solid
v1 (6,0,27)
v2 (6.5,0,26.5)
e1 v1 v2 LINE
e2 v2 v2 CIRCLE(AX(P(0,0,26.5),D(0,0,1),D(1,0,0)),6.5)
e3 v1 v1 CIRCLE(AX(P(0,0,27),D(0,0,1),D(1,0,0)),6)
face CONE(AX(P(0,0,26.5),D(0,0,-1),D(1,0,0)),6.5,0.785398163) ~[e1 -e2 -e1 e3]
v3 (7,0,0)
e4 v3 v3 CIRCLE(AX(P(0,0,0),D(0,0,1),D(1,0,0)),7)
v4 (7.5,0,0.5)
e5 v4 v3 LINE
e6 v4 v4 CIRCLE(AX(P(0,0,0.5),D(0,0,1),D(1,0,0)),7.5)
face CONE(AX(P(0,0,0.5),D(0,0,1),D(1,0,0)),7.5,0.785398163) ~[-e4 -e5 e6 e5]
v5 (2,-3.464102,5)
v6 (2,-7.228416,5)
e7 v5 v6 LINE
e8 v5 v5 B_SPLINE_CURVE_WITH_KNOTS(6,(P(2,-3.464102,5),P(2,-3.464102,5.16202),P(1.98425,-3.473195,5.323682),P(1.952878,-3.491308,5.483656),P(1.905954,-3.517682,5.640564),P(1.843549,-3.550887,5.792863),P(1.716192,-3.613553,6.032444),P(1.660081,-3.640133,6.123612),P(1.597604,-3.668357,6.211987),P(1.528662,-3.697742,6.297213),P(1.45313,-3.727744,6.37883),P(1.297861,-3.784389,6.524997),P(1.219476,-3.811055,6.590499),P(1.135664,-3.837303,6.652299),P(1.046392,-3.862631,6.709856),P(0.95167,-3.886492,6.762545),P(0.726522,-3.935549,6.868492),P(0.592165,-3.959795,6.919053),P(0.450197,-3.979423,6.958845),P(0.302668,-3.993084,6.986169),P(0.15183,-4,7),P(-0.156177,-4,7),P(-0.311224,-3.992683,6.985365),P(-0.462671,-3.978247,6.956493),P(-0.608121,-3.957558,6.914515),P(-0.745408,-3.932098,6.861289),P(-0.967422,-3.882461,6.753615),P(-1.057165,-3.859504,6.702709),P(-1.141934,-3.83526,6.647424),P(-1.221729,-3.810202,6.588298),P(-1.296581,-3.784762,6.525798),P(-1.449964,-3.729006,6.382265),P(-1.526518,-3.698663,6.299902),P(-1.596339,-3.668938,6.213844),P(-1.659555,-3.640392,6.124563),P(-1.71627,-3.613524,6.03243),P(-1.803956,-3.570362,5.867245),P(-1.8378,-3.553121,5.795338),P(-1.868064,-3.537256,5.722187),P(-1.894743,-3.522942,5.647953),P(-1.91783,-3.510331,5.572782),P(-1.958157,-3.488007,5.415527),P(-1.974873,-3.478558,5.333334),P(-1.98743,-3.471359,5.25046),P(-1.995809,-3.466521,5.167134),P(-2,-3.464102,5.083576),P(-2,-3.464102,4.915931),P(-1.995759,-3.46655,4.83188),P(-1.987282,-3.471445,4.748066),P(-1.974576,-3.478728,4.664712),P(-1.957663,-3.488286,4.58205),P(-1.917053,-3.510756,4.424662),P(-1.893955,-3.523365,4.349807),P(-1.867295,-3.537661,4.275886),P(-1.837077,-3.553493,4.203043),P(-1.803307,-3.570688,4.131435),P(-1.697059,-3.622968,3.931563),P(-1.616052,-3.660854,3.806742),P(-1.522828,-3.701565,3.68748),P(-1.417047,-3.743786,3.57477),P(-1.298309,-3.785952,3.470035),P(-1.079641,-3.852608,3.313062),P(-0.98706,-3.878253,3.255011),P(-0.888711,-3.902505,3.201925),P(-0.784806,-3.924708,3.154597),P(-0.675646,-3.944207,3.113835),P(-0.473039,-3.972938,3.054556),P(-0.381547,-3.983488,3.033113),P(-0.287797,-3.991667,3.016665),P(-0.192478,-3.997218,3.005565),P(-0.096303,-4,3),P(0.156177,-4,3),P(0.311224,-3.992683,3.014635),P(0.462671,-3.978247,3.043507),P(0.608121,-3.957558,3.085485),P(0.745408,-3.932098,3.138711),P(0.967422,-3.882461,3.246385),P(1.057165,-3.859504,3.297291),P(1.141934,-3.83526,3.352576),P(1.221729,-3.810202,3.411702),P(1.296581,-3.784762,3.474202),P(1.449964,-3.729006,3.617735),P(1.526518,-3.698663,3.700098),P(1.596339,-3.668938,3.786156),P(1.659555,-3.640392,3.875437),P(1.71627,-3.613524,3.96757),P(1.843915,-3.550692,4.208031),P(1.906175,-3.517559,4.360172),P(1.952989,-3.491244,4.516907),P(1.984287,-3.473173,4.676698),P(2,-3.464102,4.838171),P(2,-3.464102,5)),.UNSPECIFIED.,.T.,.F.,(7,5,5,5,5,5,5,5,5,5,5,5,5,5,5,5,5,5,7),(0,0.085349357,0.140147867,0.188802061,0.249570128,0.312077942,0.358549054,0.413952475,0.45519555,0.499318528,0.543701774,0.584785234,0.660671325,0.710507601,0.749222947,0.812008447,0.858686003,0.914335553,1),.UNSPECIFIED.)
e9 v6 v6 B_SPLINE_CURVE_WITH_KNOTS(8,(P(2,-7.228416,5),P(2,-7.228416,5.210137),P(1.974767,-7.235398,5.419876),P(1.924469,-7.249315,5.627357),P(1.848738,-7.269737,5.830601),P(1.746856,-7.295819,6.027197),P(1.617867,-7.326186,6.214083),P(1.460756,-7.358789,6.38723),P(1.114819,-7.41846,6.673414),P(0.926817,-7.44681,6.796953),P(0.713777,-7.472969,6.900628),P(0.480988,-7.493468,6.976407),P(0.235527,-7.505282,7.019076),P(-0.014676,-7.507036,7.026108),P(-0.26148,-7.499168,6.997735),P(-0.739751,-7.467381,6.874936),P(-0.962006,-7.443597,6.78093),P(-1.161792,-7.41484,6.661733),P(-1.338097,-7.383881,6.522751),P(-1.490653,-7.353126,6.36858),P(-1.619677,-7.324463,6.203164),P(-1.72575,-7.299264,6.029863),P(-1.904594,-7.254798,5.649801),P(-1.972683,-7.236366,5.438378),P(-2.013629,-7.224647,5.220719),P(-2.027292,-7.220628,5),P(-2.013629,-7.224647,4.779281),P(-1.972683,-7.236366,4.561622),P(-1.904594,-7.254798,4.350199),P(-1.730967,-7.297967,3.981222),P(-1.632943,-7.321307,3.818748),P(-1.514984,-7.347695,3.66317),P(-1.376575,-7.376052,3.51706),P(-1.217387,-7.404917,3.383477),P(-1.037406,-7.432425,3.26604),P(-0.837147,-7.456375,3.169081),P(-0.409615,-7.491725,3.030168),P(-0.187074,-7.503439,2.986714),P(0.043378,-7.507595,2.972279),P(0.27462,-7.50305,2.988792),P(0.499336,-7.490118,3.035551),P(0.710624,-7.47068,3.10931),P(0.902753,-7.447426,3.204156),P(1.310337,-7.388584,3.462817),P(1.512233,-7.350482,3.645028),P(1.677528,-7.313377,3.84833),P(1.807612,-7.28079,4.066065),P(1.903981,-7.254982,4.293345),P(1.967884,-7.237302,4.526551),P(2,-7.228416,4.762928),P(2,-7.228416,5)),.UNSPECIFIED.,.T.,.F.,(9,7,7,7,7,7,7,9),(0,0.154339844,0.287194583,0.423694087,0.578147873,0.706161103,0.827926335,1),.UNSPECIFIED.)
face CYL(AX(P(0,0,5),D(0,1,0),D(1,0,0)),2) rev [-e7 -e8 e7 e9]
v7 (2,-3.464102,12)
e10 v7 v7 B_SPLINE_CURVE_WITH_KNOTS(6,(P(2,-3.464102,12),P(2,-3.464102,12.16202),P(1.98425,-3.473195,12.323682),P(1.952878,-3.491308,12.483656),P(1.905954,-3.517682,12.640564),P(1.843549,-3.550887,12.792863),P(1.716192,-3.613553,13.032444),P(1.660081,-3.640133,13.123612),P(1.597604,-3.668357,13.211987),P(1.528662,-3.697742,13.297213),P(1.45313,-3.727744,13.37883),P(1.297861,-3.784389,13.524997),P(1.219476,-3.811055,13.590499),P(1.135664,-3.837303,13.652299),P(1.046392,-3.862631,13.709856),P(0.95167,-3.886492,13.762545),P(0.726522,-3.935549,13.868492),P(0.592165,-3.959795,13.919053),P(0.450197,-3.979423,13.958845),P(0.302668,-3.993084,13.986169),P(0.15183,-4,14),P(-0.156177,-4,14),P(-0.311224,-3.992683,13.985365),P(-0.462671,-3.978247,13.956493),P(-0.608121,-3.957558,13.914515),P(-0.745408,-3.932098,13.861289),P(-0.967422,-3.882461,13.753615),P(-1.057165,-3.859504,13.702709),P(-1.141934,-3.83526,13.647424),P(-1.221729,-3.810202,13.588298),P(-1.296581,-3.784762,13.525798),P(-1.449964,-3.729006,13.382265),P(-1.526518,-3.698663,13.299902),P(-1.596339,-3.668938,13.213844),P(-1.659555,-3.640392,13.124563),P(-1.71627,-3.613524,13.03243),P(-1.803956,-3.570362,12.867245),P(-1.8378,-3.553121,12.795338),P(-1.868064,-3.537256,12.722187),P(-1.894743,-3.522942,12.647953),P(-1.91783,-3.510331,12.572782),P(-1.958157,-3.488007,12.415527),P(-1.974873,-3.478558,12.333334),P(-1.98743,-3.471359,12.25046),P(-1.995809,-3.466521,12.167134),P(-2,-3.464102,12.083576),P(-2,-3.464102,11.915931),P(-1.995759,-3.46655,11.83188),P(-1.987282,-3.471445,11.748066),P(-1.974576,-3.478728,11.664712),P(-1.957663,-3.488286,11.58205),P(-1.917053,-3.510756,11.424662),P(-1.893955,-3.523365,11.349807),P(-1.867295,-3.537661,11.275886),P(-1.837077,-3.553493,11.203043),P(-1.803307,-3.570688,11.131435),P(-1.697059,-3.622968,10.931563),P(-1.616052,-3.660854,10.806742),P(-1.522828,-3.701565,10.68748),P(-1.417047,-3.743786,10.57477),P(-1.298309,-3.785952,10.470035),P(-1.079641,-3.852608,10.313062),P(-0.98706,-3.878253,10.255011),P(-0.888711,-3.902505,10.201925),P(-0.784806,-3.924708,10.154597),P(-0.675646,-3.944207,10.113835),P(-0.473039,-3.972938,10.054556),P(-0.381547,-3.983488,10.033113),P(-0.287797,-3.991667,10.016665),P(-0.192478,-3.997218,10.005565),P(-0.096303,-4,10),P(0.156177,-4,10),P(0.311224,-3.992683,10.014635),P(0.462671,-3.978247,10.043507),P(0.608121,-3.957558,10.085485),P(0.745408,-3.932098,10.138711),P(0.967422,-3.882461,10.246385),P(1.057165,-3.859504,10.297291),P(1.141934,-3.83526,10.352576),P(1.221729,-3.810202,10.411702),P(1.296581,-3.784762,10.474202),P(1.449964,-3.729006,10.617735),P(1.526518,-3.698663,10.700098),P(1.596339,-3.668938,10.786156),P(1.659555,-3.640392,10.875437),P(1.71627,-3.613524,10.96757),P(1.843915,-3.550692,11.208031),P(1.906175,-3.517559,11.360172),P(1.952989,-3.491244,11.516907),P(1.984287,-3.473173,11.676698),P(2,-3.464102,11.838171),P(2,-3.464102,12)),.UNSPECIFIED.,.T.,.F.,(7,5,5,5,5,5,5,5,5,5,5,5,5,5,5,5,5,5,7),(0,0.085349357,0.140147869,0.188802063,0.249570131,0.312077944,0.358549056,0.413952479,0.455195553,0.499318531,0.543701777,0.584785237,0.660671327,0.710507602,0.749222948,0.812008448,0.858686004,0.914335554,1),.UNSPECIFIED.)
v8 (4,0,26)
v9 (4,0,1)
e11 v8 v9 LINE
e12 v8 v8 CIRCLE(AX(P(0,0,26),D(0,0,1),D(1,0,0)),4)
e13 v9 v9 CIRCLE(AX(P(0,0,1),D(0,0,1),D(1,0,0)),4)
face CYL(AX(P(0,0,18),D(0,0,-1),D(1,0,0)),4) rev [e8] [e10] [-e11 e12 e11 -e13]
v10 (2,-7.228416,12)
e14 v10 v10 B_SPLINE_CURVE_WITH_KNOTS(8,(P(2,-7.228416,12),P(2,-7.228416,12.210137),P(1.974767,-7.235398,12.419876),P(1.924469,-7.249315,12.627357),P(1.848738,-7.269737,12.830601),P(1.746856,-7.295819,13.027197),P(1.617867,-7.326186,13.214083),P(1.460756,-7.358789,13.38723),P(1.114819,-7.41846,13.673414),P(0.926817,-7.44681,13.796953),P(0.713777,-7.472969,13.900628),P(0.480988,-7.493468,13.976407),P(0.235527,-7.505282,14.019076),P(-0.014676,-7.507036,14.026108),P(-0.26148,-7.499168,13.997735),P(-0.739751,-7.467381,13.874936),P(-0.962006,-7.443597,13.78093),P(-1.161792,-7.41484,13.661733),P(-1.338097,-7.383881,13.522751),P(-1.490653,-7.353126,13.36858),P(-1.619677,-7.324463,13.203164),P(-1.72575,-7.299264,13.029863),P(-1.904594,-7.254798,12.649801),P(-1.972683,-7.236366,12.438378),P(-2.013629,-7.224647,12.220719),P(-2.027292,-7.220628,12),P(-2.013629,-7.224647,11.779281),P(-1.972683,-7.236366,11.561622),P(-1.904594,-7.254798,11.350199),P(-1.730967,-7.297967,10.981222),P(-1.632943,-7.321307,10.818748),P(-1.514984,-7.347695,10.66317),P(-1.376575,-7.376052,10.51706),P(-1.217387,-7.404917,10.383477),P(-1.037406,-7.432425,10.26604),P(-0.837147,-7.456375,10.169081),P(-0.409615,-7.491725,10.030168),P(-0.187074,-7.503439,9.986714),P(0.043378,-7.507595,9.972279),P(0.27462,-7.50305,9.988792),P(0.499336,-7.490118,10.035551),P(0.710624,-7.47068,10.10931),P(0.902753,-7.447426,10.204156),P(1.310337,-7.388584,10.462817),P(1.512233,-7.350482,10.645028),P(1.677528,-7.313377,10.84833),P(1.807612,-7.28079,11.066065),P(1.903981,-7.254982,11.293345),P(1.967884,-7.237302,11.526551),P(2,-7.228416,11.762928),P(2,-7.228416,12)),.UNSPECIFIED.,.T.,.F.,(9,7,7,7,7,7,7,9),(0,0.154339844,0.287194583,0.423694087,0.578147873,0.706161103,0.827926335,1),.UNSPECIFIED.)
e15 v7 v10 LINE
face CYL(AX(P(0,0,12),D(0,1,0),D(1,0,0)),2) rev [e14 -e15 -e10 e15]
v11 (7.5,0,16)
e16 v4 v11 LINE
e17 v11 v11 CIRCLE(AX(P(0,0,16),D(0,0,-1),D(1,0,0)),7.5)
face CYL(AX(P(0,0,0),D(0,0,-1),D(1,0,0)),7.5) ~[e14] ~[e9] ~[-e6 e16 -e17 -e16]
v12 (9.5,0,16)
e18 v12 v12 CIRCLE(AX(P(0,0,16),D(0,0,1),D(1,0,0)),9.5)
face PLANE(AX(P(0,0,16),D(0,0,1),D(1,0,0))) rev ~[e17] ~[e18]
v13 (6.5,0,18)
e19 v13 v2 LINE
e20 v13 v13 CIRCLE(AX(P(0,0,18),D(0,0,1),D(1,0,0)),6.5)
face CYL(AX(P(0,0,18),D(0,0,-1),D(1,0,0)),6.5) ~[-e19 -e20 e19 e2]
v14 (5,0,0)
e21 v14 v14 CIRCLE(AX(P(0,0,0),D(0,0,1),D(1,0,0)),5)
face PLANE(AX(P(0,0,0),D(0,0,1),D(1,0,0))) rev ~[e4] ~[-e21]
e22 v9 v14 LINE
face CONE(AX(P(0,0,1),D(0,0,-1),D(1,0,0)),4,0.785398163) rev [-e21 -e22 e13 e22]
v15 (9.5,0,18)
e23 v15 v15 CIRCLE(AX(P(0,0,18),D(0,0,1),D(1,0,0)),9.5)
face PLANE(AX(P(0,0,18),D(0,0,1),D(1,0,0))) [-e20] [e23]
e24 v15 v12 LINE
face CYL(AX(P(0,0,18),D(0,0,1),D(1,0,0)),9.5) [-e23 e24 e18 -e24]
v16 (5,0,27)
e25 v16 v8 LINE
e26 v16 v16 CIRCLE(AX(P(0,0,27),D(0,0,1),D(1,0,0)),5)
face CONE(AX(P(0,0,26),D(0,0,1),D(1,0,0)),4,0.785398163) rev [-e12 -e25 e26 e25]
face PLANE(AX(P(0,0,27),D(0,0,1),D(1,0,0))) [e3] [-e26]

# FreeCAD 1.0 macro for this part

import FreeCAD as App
import Part
import Sketcher
from FreeCAD import Vector
Q = App.Units.Quantity


def edges_at(feature, points):
    """Names of the edges that pass closest to the given points."""
    edges = feature.Shape.Edges
    near = lambda p: min(range(len(edges)), key=lambda i: edges[i].distToShape(Part.Vertex(*p))[0])
    return sorted({f"Edge{near(p) + 1}" for p in points})

doc = App.newDocument("Part")
body = doc.addObject("PartDesign::Body", "Body")

sketch1 = doc.addObject("Sketcher::SketchObject", "Sketch")
body.addObject(sketch1)
sketch1.AttachmentSupport = (doc.XY_Plane, [""])
sketch1.MapMode = "FlatFace"
sketch1.addGeometry(Part.Circle(Vector(0, 0, 0), Vector(0, 0, 1), 7.5), False)
sketch1.addGeometry(Part.Circle(Vector(0, 0, 0), Vector(0, 0, 1), 4), False)
sketch1.addConstraint(Sketcher.Constraint("Coincident", 0, 3, -1, 1))
sketch1.addConstraint(Sketcher.Constraint("Coincident", 1, 3, -1, 1))
sketch1.addConstraint(Sketcher.Constraint("Diameter", 0, Q("15 mm")))
sketch1.addConstraint(Sketcher.Constraint("Diameter", 1, Q("8 mm")))
pad1 = doc.addObject("PartDesign::Pad", "Pad")
body.addObject(pad1)
pad1.Profile = sketch1
pad1.Length = 18

sketch2 = doc.addObject("Sketcher::SketchObject", "Sketch001")
body.addObject(sketch2)
sketch2.AttachmentSupport = (doc.XY_Plane, [""])
sketch2.MapMode = "FlatFace"
sketch2.AttachmentOffset = App.Placement(Vector(0, 0, 18), App.Rotation())
sketch2.addGeometry(Part.Circle(Vector(0, 0, 0), Vector(0, 0, 1), 6.5), False)
sketch2.addGeometry(Part.Circle(Vector(0, 0, 0), Vector(0, 0, 1), 4), False)
sketch2.addConstraint(Sketcher.Constraint("Coincident", 0, 3, -1, 1))
sketch2.addConstraint(Sketcher.Constraint("Coincident", 1, 3, -1, 1))
sketch2.addConstraint(Sketcher.Constraint("Diameter", 0, Q("13 mm")))
sketch2.addConstraint(Sketcher.Constraint("Diameter", 1, Q("8 mm")))
pad2 = doc.addObject("PartDesign::Pad", "Pad001")
body.addObject(pad2)
pad2.Profile = sketch2
pad2.Length = 9
doc.recompute()

chamfer = doc.addObject("PartDesign::Chamfer", "Chamfer")
body.addObject(chamfer)
chamfer.Base = (pad2, edges_at(pad2, [(-4, 0, 27), (-4, 0, 0)]))
chamfer.Size = 1
doc.recompute()

chamfer2 = doc.addObject("PartDesign::Chamfer", "Chamfer001")
body.addObject(chamfer2)
chamfer2.Base = (chamfer, edges_at(chamfer, [(-7.5, 0, 0), (-6.5, 0, 27)]))
chamfer2.Size = 0.5

sketch3 = doc.addObject("Sketcher::SketchObject", "Sketch002")
body.addObject(sketch3)
sketch3.AttachmentSupport = (doc.XY_Plane, [""])
sketch3.MapMode = "FlatFace"
sketch3.AttachmentOffset = App.Placement(Vector(0, 0, 18), App.Rotation())
sketch3.addGeometry(Part.Circle(Vector(0, 0, 0), Vector(0, 0, 1), 10), False)
sketch3.addGeometry(Part.Circle(Vector(0, 0, 0), Vector(0, 0, 1), 6), False)
sketch3.addConstraint(Sketcher.Constraint("Coincident", 0, 3, -1, 1))
sketch3.addConstraint(Sketcher.Constraint("Coincident", 1, 3, -1, 1))
sketch3.addConstraint(Sketcher.Constraint("Diameter", 0, Q("19 mm")))
sketch3.addConstraint(Sketcher.Constraint("Diameter", 1, Q("13 mm")))
pad3 = doc.addObject("PartDesign::Pad", "Pad002")
body.addObject(pad3)
pad3.Profile = sketch3
pad3.Length = 2
pad3.Reversed = True

sketch4 = doc.addObject("Sketcher::SketchObject", "Sketch003")
body.addObject(sketch4)
sketch4.AttachmentSupport = (doc.XZ_Plane, [""])
sketch4.MapMode = "FlatFace"
sketch4.addGeometry(Part.Circle(Vector(0, 5, 0), Vector(0, 0, 1), 2), False)
sketch4.addGeometry(Part.Circle(Vector(0, 12, 0), Vector(0, 0, 1), 2), False)
sketch4.addConstraint(Sketcher.Constraint("Equal", 0, 1))
sketch4.addConstraint(Sketcher.Constraint("PointOnObject", 0, 3, -2))
sketch4.addConstraint(Sketcher.Constraint("PointOnObject", 1, 3, -2))
sketch4.addConstraint(Sketcher.Constraint("Diameter", 0, Q("4 mm")))
sketch4.addConstraint(Sketcher.Constraint("DistanceY", -1, 1, 0, 3, Q("5 mm")))
sketch4.addConstraint(Sketcher.Constraint("DistanceY", -1, 1, 1, 3, Q("12 mm")))
pocket1 = doc.addObject("PartDesign::Pocket", "Pocket")
body.addObject(pocket1)
pocket1.Profile = sketch4
pocket1.Length = 25
pocket1.Reversed = True

doc.recompute()
